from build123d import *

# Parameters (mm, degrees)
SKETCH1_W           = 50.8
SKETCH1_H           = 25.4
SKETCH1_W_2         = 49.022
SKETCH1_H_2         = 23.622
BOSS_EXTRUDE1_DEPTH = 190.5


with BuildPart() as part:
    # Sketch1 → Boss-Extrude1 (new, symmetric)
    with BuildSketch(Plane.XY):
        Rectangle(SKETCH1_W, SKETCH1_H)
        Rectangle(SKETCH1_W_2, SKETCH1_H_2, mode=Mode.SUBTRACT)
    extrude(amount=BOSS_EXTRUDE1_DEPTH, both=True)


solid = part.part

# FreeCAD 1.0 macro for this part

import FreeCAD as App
import Part
import Sketcher
from FreeCAD import Vector
Q = App.Units.Quantity


def add_polygon(sketch, points):
    """Adds a closed chain of lines whose ends are joined by coincident constraints."""
    first, n = sketch.GeometryCount, len(points)
    for a, b in zip(points, points[1:] + points[:1]):
        sketch.addGeometry(Part.LineSegment(App.Vector(*a, 0), App.Vector(*b, 0)), False)
    for i in range(n):
        sketch.addConstraint(Sketcher.Constraint("Coincident", first + i, 2, first + (i + 1) % n, 1))

doc = App.newDocument("Part")
body = doc.addObject("PartDesign::Body", "Body")

# Sketch on XY plane
sketch1 = doc.addObject("Sketcher::SketchObject", "Sketch")
body.addObject(sketch1)
sketch1.AttachmentSupport = (doc.XY_Plane, [""])
sketch1.MapMode = "FlatFace"
add_polygon(sketch1, [(-25, 13), (-25, -13), (25, -13), (25, 13)])  # lines 0-3
add_polygon(sketch1, [(25, -12), (-25, -12), (-25, 12), (25, 12)])  # lines 4-7
sketch1.addConstraint([
    Sketcher.Constraint("Vertical", 0),
    Sketcher.Constraint("Horizontal", 1),
    Sketcher.Constraint("Vertical", 2),
    Sketcher.Constraint("Horizontal", 3),
    Sketcher.Constraint("Horizontal", 4),
    Sketcher.Constraint("Vertical", 5),
    Sketcher.Constraint("Horizontal", 6),
    Sketcher.Constraint("Vertical", 7),
    Sketcher.Constraint("Symmetric", 0, 2, 2, 2, -1, 1),
    Sketcher.Constraint("Symmetric", 4, 2, 6, 2, -1, 1),
    Sketcher.Constraint("DistanceX", 1, 1, 1, 2, Q("2 in")),
    Sketcher.Constraint("DistanceY", 0, 2, 0, 1, Q("1 in")),
    Sketcher.Constraint("DistanceX", 4, 2, 4, 1, Q("1.93 in")),
    Sketcher.Constraint("DistanceY", 5, 1, 5, 2, Q("0.93 in")),
])
pad1 = doc.addObject("PartDesign::Pad", "Pad")
body.addObject(pad1)
pad1.Profile = sketch1
pad1.Length = Q("15 in")
pad1.Midplane = True

doc.recompute()
